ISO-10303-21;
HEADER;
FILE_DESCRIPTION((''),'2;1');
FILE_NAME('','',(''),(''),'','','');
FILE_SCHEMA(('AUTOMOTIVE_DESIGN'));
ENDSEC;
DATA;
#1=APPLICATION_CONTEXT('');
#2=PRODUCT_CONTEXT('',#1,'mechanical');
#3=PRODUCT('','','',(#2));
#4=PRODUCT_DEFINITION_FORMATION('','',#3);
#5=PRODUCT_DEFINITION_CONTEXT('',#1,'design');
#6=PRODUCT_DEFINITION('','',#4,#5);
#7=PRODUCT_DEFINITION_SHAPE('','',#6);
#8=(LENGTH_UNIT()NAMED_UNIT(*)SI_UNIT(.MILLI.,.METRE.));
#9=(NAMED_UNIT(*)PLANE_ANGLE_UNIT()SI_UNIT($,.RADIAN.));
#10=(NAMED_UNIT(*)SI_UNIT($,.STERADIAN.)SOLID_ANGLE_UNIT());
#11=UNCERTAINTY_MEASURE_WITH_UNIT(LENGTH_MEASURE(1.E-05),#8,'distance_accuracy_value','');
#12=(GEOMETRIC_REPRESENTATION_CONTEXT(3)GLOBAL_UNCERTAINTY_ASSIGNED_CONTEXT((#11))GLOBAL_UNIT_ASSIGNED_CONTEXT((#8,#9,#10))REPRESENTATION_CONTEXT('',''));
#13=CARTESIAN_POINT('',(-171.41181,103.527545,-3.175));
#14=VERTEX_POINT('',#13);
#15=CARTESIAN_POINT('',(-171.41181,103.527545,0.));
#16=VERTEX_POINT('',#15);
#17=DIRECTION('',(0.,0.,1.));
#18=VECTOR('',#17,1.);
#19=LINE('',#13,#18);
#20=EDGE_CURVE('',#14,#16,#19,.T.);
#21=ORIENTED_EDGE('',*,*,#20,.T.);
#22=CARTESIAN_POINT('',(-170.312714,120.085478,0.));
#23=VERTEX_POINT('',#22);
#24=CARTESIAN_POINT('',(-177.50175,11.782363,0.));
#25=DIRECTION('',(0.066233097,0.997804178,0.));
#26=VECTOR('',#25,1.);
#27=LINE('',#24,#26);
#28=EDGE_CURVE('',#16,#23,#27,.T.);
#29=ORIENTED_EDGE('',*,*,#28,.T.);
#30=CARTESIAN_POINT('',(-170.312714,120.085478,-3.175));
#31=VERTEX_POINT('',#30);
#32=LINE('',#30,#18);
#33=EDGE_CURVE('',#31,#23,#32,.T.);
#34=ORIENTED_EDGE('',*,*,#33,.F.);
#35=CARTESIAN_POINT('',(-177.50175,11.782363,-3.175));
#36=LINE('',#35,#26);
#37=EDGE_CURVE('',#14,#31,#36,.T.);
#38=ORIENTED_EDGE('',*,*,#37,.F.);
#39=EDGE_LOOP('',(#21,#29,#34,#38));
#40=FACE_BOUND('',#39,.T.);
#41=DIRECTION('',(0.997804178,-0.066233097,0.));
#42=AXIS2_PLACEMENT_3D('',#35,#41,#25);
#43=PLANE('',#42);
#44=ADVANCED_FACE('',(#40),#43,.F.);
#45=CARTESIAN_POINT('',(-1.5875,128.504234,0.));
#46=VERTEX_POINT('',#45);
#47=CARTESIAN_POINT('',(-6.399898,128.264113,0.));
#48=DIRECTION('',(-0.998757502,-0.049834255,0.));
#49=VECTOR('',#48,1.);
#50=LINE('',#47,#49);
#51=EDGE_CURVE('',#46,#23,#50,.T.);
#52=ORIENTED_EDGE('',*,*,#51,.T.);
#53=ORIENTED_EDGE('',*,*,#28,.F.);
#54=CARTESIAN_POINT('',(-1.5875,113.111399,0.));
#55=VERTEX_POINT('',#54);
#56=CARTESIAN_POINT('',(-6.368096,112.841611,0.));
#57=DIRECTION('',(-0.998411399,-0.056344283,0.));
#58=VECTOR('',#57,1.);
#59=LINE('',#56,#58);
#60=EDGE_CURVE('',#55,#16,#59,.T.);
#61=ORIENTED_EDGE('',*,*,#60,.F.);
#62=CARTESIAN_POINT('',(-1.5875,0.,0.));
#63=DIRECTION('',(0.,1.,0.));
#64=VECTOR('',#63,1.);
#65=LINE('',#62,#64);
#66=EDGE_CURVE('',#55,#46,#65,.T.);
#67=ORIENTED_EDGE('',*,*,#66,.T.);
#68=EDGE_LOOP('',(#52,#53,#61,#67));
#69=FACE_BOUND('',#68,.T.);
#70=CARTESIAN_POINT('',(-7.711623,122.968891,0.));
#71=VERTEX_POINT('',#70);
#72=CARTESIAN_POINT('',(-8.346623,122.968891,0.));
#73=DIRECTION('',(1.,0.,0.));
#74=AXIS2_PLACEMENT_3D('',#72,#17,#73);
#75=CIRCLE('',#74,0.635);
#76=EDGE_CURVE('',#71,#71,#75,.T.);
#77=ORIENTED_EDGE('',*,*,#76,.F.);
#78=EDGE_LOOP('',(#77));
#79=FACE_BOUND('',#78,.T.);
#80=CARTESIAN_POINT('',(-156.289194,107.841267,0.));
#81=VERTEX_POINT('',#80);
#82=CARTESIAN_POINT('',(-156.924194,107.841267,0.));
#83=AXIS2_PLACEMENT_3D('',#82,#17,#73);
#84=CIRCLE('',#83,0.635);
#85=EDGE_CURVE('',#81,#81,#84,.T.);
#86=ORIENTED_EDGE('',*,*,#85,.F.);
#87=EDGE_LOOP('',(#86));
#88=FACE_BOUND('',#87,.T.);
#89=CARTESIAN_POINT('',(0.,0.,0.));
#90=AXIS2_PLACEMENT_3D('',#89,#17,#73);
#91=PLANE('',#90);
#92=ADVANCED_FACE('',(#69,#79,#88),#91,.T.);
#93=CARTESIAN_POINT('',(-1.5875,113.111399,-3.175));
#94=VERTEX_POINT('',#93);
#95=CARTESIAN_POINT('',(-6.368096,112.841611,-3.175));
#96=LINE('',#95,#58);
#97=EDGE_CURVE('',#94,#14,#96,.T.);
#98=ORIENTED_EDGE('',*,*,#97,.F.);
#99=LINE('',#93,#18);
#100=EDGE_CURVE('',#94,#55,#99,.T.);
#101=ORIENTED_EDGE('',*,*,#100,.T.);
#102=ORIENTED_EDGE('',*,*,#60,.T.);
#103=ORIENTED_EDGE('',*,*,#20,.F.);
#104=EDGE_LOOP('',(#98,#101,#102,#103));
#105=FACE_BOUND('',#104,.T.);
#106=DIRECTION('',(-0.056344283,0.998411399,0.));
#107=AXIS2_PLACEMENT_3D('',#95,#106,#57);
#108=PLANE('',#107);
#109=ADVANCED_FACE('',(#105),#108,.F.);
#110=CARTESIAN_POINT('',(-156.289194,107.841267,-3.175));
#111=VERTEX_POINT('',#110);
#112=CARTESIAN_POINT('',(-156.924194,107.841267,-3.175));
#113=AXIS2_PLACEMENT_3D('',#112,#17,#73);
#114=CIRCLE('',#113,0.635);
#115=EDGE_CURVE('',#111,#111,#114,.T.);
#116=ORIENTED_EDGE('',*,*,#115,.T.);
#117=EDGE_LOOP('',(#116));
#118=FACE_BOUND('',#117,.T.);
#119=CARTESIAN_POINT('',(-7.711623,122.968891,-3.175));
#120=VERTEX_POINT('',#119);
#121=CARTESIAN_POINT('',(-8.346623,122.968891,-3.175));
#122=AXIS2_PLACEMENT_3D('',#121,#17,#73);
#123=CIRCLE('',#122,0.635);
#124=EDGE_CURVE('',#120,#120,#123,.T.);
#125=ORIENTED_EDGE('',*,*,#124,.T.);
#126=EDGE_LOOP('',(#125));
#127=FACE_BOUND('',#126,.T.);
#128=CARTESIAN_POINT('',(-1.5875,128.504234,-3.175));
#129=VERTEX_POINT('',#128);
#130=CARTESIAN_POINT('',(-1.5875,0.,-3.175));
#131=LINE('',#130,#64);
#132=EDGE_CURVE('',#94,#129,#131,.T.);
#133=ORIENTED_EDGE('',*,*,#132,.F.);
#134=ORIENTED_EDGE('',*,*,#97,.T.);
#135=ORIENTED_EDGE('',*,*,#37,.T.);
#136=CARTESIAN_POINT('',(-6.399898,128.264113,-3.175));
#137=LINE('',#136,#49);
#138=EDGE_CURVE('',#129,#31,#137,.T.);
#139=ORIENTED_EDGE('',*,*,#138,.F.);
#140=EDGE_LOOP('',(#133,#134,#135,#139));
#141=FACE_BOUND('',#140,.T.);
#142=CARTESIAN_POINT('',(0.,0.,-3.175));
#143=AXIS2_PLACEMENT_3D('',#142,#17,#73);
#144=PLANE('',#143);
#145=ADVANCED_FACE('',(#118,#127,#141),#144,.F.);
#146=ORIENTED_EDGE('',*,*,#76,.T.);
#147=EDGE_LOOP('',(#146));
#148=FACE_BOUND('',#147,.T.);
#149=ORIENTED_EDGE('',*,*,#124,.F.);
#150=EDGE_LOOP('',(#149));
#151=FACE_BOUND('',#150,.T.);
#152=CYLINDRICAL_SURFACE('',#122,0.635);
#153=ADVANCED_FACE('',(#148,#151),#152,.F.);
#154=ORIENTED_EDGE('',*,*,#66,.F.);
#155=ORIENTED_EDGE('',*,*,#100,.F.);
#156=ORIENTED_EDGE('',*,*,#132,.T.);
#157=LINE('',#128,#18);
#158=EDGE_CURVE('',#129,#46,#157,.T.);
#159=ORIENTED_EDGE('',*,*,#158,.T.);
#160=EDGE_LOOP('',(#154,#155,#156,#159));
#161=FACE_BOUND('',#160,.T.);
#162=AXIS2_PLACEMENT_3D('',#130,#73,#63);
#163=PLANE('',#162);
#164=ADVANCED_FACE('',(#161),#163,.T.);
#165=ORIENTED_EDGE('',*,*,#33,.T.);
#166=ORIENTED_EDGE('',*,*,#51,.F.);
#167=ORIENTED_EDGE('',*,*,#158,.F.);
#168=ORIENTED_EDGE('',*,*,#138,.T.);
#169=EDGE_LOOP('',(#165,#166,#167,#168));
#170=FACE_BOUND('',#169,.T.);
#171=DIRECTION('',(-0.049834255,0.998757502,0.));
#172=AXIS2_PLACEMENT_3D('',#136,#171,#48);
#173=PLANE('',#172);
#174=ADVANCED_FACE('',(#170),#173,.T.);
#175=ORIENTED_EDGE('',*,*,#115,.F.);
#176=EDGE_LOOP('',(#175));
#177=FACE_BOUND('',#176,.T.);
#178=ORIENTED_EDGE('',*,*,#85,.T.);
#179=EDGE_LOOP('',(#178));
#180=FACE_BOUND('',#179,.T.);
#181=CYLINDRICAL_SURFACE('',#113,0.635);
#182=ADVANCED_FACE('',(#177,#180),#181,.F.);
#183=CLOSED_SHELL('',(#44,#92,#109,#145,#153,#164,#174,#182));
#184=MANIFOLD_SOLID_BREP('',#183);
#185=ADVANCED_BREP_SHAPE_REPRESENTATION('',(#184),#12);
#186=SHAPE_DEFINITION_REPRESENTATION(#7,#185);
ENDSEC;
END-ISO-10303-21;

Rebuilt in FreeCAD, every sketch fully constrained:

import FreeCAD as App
import Part
import Sketcher
Q = App.Units.Quantity

doc = App.newDocument("Part")
body = doc.addObject("PartDesign::Body", "Body")

# Sketch on XY plane
sketch1 = doc.addObject("Sketcher::SketchObject", "Sketch")
body.addObject(sketch1)
sketch1.AttachmentSupport = (doc.XY_Plane, [""])
sketch1.MapMode = "FlatFace"
sketch1.addGeometry([
    Part.LineSegment(App.Vector(-1.6, 113.1, 0), App.Vector(-1.6, 128.5, 0)),  # 0
    Part.LineSegment(App.Vector(-1.6, 128.5, 0), App.Vector(-170.3, 120.1, 0)),  # 1
    Part.LineSegment(App.Vector(-170.3, 120.1, 0), App.Vector(-171.4, 103.5, 0)),  # 2
    Part.LineSegment(App.Vector(-171.4, 103.5, 0), App.Vector(-1.6, 113.1, 0)),  # 3
    Part.Circle(App.Vector(-156.9, 107.8, 0), App.Vector(0, 0, 1), 0.6),  # 4
    Part.Circle(App.Vector(-8.3, 123, 0), App.Vector(0, 0, 1), 0.6),  # 5
], False)
sketch1.addConstraint([
    Sketcher.Constraint("Coincident", 0, 2, 1, 1),
    Sketcher.Constraint("Coincident", 1, 2, 2, 1),
    Sketcher.Constraint("Coincident", 2, 2, 3, 1),
    Sketcher.Constraint("Coincident", 3, 2, 0, 1),
    Sketcher.Constraint("Vertical", 0),
    Sketcher.Constraint("Equal", 4, 5),
    Sketcher.Constraint("Diameter", 4, Q("0.05 in")),
    Sketcher.Constraint("Angle", 3, Q("3.23 deg")),
    Sketcher.Constraint("DistanceX", 0, 2, -1, 1, Q("0.0625 in")),
    Sketcher.Constraint("DistanceY", -1, 1, 3, 2, 113.111399),
    Sketcher.Constraint("Distance", 2, 16.594371),
    Sketcher.Constraint("DistanceY", 0, 1, 0, 2, 15.392834),
    Sketcher.Constraint("DistanceY", -1, 1, 5, 3, 122.968891),
    Sketcher.Constraint("DistanceX", 2, 2, -1, 1, 171.41181),
    Sketcher.Constraint("DistanceX", 4, 3, 5, 3, 148.577571),
    Sketcher.Constraint("DistanceX", 1, 2, 4, 3, 13.38852),
    Sketcher.Constraint("DistanceY", 4, 3, 1, 2, 12.244211),
    Sketcher.Constraint("DistanceY", 4, 3, 3, 2, 5.270132),
])
pad1 = doc.addObject("PartDesign::Pad", "Pad")
body.addObject(pad1)
pad1.Profile = sketch1
pad1.Length = Q("0.125 in")
pad1.Reversed = True

doc.recompute()
